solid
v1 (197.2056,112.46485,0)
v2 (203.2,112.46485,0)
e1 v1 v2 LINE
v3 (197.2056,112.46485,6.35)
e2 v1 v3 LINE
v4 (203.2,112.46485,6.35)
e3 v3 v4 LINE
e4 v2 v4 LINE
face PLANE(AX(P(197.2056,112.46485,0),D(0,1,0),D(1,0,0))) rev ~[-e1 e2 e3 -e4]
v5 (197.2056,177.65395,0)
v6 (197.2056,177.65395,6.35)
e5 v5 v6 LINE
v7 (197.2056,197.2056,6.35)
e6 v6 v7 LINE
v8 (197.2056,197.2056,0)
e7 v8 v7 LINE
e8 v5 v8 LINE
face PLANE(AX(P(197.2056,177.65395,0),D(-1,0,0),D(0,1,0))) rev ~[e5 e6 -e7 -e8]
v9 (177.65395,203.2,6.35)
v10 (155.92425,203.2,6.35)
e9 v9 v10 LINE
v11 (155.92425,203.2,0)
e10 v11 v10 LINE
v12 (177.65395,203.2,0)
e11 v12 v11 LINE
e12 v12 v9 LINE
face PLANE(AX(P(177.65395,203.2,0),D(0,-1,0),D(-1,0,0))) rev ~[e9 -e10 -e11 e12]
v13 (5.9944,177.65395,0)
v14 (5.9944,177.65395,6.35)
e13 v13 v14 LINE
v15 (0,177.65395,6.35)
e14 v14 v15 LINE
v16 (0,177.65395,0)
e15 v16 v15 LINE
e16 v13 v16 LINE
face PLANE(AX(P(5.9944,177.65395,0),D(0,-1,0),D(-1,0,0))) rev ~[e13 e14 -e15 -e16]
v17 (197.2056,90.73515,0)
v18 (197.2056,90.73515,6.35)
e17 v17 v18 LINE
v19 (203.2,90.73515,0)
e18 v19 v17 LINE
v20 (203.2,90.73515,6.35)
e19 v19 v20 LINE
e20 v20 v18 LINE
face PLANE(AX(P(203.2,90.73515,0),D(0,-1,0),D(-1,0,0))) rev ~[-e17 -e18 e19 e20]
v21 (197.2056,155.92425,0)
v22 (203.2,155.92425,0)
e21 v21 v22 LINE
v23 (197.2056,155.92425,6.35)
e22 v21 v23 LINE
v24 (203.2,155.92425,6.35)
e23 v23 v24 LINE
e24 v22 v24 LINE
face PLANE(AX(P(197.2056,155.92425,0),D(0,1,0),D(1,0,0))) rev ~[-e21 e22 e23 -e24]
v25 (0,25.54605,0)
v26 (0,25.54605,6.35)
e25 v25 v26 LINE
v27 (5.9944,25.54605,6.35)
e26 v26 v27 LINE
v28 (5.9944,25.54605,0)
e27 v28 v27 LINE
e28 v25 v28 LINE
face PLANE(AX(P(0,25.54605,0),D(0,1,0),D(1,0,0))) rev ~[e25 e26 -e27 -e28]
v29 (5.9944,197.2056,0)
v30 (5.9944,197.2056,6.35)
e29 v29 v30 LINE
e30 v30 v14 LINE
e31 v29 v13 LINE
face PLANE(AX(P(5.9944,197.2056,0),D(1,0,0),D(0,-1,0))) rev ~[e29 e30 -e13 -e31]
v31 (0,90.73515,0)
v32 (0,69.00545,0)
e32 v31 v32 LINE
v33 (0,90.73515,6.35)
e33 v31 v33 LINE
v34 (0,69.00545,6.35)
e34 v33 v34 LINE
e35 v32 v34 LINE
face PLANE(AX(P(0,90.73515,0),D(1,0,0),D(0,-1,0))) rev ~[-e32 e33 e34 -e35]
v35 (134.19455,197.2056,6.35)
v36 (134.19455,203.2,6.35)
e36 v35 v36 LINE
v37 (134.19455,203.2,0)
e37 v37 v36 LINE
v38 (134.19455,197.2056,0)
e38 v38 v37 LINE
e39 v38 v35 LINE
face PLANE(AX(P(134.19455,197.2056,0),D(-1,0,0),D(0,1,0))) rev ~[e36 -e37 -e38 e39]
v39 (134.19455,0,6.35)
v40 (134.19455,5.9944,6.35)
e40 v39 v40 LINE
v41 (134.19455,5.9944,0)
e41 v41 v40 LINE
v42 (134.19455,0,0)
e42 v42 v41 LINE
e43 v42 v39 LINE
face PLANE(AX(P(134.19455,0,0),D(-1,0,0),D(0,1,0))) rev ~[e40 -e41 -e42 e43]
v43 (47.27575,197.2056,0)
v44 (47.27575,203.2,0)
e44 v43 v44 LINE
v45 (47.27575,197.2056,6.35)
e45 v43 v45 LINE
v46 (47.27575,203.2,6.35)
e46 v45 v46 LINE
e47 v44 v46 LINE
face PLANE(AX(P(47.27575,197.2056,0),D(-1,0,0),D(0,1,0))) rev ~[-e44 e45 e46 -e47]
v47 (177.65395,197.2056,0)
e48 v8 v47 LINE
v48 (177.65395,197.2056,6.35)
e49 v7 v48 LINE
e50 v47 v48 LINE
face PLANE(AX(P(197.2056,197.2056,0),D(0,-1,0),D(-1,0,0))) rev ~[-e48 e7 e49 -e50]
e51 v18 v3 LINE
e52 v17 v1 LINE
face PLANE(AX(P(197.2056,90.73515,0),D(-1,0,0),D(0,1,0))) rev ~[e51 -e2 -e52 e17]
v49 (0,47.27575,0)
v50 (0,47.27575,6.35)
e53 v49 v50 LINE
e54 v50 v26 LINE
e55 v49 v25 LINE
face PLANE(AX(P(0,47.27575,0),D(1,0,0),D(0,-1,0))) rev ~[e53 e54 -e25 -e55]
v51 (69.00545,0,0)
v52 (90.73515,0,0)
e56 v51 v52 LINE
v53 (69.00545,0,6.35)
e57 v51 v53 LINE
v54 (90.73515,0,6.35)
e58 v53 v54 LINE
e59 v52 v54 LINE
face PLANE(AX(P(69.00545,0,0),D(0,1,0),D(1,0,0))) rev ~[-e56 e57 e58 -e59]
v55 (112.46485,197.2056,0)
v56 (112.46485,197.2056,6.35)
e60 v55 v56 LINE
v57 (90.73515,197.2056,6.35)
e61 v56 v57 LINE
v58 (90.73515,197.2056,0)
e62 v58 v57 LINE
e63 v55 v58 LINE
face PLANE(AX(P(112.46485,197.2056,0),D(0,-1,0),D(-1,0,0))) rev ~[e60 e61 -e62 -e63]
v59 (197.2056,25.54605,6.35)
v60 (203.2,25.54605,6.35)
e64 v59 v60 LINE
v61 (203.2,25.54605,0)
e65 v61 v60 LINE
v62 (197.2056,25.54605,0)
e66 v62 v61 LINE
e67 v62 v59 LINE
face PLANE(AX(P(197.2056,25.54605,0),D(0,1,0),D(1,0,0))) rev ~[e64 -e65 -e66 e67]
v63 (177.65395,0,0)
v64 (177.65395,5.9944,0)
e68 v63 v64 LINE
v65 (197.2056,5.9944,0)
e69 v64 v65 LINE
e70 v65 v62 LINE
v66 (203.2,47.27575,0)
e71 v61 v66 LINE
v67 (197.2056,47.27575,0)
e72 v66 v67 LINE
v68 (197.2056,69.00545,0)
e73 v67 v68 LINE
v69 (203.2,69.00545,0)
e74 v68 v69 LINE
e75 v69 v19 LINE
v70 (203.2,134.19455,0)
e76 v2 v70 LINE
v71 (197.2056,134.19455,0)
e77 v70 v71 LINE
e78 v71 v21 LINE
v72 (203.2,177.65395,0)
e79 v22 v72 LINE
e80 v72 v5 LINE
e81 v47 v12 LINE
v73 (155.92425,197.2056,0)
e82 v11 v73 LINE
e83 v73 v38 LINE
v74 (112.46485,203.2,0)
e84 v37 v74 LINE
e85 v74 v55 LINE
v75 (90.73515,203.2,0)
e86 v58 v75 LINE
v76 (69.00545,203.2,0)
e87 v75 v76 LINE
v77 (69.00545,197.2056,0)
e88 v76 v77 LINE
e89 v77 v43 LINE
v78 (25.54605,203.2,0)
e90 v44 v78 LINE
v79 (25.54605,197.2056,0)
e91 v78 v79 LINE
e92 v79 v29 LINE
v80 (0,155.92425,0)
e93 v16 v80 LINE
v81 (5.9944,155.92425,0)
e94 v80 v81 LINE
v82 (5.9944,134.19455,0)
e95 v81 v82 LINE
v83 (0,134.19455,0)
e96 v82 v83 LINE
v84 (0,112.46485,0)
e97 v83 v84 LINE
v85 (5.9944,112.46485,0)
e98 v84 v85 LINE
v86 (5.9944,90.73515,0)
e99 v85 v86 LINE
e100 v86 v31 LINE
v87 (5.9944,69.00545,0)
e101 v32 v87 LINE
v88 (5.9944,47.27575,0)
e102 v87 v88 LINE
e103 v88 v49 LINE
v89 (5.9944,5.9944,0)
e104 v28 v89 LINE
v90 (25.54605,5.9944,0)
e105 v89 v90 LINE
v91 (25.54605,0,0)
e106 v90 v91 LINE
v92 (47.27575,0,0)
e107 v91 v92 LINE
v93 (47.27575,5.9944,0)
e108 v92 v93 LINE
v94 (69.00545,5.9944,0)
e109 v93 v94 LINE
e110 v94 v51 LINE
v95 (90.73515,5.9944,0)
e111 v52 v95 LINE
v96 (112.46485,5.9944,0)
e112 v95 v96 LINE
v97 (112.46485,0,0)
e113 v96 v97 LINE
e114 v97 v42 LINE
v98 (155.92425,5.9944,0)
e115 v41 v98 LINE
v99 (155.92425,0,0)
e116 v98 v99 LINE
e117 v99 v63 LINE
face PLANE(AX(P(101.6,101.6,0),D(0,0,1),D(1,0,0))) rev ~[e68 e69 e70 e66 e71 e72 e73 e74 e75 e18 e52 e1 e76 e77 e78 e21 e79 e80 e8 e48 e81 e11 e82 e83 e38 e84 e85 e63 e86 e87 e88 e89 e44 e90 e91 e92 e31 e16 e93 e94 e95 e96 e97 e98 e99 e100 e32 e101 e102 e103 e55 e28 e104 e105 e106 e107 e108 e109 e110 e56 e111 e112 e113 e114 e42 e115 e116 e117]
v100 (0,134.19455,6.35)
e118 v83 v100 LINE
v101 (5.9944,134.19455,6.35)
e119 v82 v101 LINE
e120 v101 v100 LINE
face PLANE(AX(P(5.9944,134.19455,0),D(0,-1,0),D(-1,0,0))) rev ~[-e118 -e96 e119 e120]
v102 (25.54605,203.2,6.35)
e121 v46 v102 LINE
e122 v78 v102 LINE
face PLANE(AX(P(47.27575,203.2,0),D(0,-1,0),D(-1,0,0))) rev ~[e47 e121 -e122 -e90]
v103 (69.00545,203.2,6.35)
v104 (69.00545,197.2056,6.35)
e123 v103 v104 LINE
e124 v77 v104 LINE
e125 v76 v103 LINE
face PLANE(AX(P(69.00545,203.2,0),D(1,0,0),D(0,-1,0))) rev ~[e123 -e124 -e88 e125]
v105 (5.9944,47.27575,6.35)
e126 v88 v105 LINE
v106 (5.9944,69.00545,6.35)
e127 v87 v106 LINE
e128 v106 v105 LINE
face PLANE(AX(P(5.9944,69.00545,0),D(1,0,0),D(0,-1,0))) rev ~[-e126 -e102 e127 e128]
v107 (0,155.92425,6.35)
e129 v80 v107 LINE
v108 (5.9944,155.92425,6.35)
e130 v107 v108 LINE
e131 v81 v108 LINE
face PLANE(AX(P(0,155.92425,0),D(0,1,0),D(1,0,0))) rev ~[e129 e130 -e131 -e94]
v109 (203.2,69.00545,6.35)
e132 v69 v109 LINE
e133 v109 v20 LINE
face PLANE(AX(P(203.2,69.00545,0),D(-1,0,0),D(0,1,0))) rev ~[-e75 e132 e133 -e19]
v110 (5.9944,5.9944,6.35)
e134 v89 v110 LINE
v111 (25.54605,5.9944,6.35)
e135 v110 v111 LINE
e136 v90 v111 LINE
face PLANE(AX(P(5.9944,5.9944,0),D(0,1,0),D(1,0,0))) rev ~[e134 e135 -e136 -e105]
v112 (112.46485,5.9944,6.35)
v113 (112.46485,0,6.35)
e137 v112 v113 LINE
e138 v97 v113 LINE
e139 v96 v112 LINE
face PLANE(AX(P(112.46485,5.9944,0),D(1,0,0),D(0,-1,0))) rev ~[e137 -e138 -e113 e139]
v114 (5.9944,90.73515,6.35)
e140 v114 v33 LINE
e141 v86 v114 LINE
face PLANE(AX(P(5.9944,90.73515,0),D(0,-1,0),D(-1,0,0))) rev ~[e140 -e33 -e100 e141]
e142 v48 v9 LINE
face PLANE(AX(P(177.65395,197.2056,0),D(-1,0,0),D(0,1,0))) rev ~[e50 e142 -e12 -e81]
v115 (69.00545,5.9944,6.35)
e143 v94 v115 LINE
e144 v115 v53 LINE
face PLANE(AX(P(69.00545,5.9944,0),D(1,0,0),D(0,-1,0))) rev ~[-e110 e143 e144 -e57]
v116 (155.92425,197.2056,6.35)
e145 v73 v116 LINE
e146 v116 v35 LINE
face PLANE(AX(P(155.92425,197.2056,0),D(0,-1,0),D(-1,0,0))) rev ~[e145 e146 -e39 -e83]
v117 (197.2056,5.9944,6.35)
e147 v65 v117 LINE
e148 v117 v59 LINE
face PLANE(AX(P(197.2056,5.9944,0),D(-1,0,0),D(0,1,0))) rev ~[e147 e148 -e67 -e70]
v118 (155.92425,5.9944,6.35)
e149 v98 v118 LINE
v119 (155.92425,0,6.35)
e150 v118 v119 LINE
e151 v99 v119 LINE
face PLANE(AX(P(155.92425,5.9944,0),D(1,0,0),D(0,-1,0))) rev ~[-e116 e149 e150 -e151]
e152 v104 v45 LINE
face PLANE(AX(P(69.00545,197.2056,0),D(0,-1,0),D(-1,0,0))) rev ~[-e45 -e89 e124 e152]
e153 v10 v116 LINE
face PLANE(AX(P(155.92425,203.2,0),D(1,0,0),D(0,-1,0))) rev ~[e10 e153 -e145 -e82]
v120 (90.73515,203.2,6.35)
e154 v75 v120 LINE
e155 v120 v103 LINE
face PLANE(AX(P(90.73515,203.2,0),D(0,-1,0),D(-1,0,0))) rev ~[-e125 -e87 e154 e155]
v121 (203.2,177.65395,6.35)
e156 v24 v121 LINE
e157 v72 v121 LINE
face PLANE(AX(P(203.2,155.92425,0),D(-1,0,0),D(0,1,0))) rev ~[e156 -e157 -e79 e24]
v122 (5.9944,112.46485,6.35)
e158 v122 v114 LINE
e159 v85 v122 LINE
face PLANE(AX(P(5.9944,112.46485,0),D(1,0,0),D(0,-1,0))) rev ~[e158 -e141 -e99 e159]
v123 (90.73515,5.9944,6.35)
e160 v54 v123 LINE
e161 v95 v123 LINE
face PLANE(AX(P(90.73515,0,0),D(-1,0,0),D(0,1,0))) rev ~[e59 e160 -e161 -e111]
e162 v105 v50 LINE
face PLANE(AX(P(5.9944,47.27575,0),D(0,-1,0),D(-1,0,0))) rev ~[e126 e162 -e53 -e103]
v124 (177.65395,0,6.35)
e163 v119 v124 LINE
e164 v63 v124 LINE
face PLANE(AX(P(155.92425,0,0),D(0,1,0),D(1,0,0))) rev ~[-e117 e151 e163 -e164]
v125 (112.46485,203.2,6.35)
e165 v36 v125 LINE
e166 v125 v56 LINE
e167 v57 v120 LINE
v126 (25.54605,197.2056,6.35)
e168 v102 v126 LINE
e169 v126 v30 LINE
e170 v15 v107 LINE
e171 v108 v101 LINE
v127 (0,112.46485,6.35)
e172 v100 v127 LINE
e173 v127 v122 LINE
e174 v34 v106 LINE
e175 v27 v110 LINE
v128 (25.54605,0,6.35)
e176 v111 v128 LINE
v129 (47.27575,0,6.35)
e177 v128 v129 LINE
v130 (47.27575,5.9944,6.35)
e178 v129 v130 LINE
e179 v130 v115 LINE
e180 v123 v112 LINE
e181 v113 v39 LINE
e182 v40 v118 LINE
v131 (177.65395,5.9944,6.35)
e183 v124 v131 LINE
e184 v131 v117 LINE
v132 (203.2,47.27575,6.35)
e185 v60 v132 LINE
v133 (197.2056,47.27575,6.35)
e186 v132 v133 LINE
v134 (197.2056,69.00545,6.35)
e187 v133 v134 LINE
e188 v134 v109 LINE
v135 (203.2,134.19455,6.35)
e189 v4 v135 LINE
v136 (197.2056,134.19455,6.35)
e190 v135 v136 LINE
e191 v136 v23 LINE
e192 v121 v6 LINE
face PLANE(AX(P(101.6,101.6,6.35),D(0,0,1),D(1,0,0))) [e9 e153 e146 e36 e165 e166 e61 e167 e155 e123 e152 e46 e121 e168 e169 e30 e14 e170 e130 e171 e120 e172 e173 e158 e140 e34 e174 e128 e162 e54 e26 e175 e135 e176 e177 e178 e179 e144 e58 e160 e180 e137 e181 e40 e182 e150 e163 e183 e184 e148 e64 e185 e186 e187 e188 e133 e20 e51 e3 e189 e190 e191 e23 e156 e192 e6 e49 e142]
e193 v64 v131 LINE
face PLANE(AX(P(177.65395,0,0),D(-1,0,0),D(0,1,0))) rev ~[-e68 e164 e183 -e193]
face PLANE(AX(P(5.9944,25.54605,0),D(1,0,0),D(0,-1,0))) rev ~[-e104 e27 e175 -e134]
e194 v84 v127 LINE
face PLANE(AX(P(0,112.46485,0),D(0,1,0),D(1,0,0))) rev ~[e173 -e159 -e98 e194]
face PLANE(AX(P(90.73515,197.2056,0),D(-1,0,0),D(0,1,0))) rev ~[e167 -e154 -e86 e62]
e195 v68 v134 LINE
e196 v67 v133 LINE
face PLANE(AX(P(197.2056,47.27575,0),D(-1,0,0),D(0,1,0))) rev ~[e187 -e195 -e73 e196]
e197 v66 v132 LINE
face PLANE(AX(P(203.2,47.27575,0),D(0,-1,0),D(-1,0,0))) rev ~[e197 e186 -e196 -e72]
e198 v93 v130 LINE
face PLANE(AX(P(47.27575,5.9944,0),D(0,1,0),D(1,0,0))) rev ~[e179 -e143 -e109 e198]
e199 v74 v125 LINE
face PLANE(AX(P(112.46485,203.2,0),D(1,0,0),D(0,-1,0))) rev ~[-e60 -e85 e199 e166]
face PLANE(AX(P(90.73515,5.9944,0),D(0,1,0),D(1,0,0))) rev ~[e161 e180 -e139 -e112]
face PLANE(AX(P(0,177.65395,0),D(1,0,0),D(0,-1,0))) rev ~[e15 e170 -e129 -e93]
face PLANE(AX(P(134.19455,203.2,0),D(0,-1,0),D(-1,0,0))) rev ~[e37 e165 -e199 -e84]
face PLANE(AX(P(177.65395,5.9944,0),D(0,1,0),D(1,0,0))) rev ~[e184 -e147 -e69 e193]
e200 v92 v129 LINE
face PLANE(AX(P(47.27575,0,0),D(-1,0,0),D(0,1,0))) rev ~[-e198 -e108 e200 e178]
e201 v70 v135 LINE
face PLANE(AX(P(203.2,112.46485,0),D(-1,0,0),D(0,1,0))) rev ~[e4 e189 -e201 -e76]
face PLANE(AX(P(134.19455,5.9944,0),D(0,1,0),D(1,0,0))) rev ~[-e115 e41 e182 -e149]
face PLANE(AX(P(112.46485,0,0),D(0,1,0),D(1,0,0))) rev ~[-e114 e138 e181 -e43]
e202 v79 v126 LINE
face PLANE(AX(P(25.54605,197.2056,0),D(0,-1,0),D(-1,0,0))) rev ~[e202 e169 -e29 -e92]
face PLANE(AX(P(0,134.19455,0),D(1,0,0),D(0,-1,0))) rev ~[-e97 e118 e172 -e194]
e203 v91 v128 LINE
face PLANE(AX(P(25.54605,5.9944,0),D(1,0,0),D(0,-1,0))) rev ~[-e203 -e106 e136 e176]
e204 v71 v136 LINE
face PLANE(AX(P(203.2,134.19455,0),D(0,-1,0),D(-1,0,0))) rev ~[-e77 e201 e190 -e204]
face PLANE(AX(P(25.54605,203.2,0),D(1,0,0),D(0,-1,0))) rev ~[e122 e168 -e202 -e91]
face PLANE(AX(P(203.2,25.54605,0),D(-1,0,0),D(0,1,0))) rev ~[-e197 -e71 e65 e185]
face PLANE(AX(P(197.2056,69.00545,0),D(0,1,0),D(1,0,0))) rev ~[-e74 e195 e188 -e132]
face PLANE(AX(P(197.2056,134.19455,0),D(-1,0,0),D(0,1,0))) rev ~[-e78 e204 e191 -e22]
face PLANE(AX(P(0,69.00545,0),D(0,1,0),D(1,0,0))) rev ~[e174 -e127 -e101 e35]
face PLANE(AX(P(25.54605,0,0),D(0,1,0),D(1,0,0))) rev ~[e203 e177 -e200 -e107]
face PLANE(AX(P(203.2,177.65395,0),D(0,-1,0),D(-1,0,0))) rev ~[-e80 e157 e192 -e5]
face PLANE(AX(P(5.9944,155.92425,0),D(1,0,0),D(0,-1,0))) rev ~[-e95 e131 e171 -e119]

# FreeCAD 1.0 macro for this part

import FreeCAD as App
import Part
import Sketcher
from FreeCAD import Vector
Q = App.Units.Quantity


def add_polygon(sketch, points):
    """Adds a closed chain of lines whose ends are joined by coincident constraints."""
    first, n = sketch.GeometryCount, len(points)
    for a, b in zip(points, points[1:] + points[:1]):
        sketch.addGeometry(Part.LineSegment(App.Vector(*a, 0), App.Vector(*b, 0)), False)
    for i in range(n):
        sketch.addConstraint(Sketcher.Constraint("Coincident", first + i, 2, first + (i + 1) % n, 1))

doc = App.newDocument("Part")
body = doc.addObject("PartDesign::Body", "Body")

sketch1 = body.newObject("Sketcher::SketchObject", "Sketch")
sketch1.AttachmentSupport = (doc.getObject("XY_Plane"), [""])
sketch1.MapMode = "FlatFace"
add_polygon(sketch1, [(0, 177.65395), (0, 155.92425), (5.9944, 155.92425), (5.9944, 134.19455), (0, 134.19455), (0, 112.46485), (5.9944, 112.46485), (5.9944, 90.73515), (0, 90.73515), (0, 69.00545), (5.9944, 69.00545), (5.9944, 47.27575), (0, 47.27575), (0, 25.54605), (5.9944, 25.54605), (5.9944, 5.9944), (25.54605, 5.9944), (25.54605, 0), (47.27575, 0), (47.27575, 5.9944), (69.00545, 5.9944), (69.00545, 0), (90.73515, 0), (90.73515, 5.9944), (112.46485, 5.9944), (112.46485, 0), (134.19455, 0), (134.19455, 5.9944), (155.92425, 5.9944), (155.92425, 0), (177.65395, 0), (177.65395, 5.9944), (197.2056, 5.9944), (197.2056, 25.54605), (203.2, 25.54605), (203.2, 47.27575), (197.2056, 47.27575), (197.2056, 69.00545), (203.2, 69.00545), (203.2, 90.73515), (197.2056, 90.73515), (197.2056, 112.46485), (203.2, 112.46485), (203.2, 134.19455), (197.2056, 134.19455), (197.2056, 155.92425), (203.2, 155.92425), (203.2, 177.65395), (197.2056, 177.65395), (197.2056, 197.2056), (177.65395, 197.2056), (177.65395, 203.2), (155.92425, 203.2), (155.92425, 197.2056), (134.19455, 197.2056), (134.19455, 203.2), (112.46485, 203.2), (112.46485, 197.2056), (90.73515, 197.2056), (90.73515, 203.2), (69.00545, 203.2), (69.00545, 197.2056), (47.27575, 197.2056), (47.27575, 203.2), (25.54605, 203.2), (25.54605, 197.2056), (5.9944, 197.2056), (5.9944, 177.65395)])
sketch1.addConstraint([
    Sketcher.Constraint("Vertical", 0),
    Sketcher.Constraint("Horizontal", 1),
    Sketcher.Constraint("Vertical", 2),
    Sketcher.Constraint("Horizontal", 3),
    Sketcher.Constraint("Vertical", 4),
    Sketcher.Constraint("Horizontal", 5),
    Sketcher.Constraint("Vertical", 6),
    Sketcher.Constraint("Horizontal", 7),
    Sketcher.Constraint("Vertical", 8),
    Sketcher.Constraint("Horizontal", 9),
    Sketcher.Constraint("Vertical", 10),
    Sketcher.Constraint("Horizontal", 11),
    Sketcher.Constraint("Vertical", 12),
    Sketcher.Constraint("Horizontal", 13),
    Sketcher.Constraint("Vertical", 14),
    Sketcher.Constraint("Horizontal", 15),
    Sketcher.Constraint("Vertical", 16),
    Sketcher.Constraint("Horizontal", 17),
    Sketcher.Constraint("Vertical", 18),
    Sketcher.Constraint("Horizontal", 19),
    Sketcher.Constraint("Vertical", 20),
    Sketcher.Constraint("Horizontal", 21),
    Sketcher.Constraint("Vertical", 22),
    Sketcher.Constraint("Horizontal", 23),
    Sketcher.Constraint("Vertical", 24),
    Sketcher.Constraint("Horizontal", 25),
    Sketcher.Constraint("Vertical", 26),
    Sketcher.Constraint("Horizontal", 27),
    Sketcher.Constraint("Vertical", 28),
    Sketcher.Constraint("Horizontal", 29),
    Sketcher.Constraint("Vertical", 30),
    Sketcher.Constraint("Horizontal", 31),
    Sketcher.Constraint("Vertical", 32),
    Sketcher.Constraint("Horizontal", 33),
    Sketcher.Constraint("Vertical", 34),
    Sketcher.Constraint("Horizontal", 35),
    Sketcher.Constraint("Vertical", 36),
    Sketcher.Constraint("Horizontal", 37),
    Sketcher.Constraint("Vertical", 38),
    Sketcher.Constraint("Horizontal", 39),
    Sketcher.Constraint("Vertical", 40),
    Sketcher.Constraint("Horizontal", 41),
    Sketcher.Constraint("Vertical", 42),
    Sketcher.Constraint("Horizontal", 43),
    Sketcher.Constraint("Vertical", 44),
    Sketcher.Constraint("Horizontal", 45),
    Sketcher.Constraint("Vertical", 46),
    Sketcher.Constraint("Horizontal", 47),
    Sketcher.Constraint("Vertical", 48),
    Sketcher.Constraint("Horizontal", 49),
    Sketcher.Constraint("Vertical", 50),
    Sketcher.Constraint("Horizontal", 51),
    Sketcher.Constraint("Vertical", 52),
    Sketcher.Constraint("Horizontal", 53),
    Sketcher.Constraint("Vertical", 54),
    Sketcher.Constraint("Horizontal", 55),
    Sketcher.Constraint("Vertical", 56),
    Sketcher.Constraint("Horizontal", 57),
    Sketcher.Constraint("Vertical", 58),
    Sketcher.Constraint("Horizontal", 59),
    Sketcher.Constraint("Vertical", 60),
    Sketcher.Constraint("Horizontal", 61),
    Sketcher.Constraint("Vertical", 62),
    Sketcher.Constraint("Horizontal", 63),
    Sketcher.Constraint("Vertical", 64),
    Sketcher.Constraint("Horizontal", 65),
    Sketcher.Constraint("Vertical", 66),
    Sketcher.Constraint("Horizontal", 67),
    Sketcher.Constraint("PointOnObject", 0, 2, -2),
    Sketcher.Constraint("PointOnObject", 3, 2, -2),
    Sketcher.Constraint("PointOnObject", 7, 2, -2),
    Sketcher.Constraint("PointOnObject", 11, 2, -2),
    Sketcher.Constraint("PointOnObject", 16, 2, -1),
    Sketcher.Constraint("PointOnObject", 20, 2, -1),
    Sketcher.Constraint("PointOnObject", 24, 2, -1),
    Sketcher.Constraint("PointOnObject", 28, 2, -1),
    Sketcher.Constraint("Horizontal", 15, 2, 18, 2),
    Sketcher.Constraint("Horizontal", 19, 2, 22, 2),
    Sketcher.Constraint("Horizontal", 23, 2, 26, 2),
    Sketcher.Constraint("Horizontal", 27, 2, 30, 2),
    Sketcher.Constraint("Horizontal", 13, 2, 32, 2),
    Sketcher.Constraint("Horizontal", 11, 2, 34, 2),
    Sketcher.Constraint("Horizontal", 9, 2, 36, 2),
    Sketcher.Constraint("Horizontal", 7, 2, 38, 2),
    Sketcher.Constraint("Horizontal", 5, 2, 40, 2),
    Sketcher.Constraint("Horizontal", 3, 2, 42, 2),
    Sketcher.Constraint("Horizontal", 1, 2, 44, 2),
    Sketcher.Constraint("Horizontal", 49, 2, 52, 2),
    Sketcher.Constraint("Horizontal", 51, 2, 54, 2),
    Sketcher.Constraint("Horizontal", 53, 2, 56, 2),
    Sketcher.Constraint("Horizontal", 55, 2, 58, 2),
    Sketcher.Constraint("Horizontal", 57, 2, 60, 2),
    Sketcher.Constraint("Horizontal", 59, 2, 62, 2),
    Sketcher.Constraint("Horizontal", 61, 2, 64, 2),
    Sketcher.Constraint("Horizontal", 47, 2, 66, 2),
    Sketcher.Constraint("Vertical", 2, 2, 5, 2),
    Sketcher.Constraint("Vertical", 6, 2, 9, 2),
    Sketcher.Constraint("Vertical", 10, 2, 13, 2),
    Sketcher.Constraint("Vertical", 32, 2, 35, 2),
    Sketcher.Constraint("Vertical", 34, 2, 37, 2),
    Sketcher.Constraint("Vertical", 36, 2, 39, 2),
    Sketcher.Constraint("Vertical", 38, 2, 41, 2),
    Sketcher.Constraint("Vertical", 40, 2, 43, 2),
    Sketcher.Constraint("Vertical", 42, 2, 45, 2),
    Sketcher.Constraint("Vertical", 44, 2, 47, 2),
    Sketcher.Constraint("Vertical", 30, 2, 49, 2),
    Sketcher.Constraint("Vertical", 28, 2, 51, 2),
    Sketcher.Constraint("Vertical", 26, 2, 53, 2),
    Sketcher.Constraint("Vertical", 24, 2, 55, 2),
    Sketcher.Constraint("Vertical", 22, 2, 57, 2),
    Sketcher.Constraint("Vertical", 20, 2, 59, 2),
    Sketcher.Constraint("Vertical", 18, 2, 61, 2),
    Sketcher.Constraint("Vertical", 16, 2, 63, 2),
    Sketcher.Constraint("Vertical", 14, 2, 65, 2),
    Sketcher.Constraint("Equal", 17, 19),
    Sketcher.Constraint("Equal", 19, 21),
    Sketcher.Constraint("Equal", 21, 23),
    Sketcher.Constraint("Equal", 23, 25),
    Sketcher.Constraint("Equal", 25, 27),
    Sketcher.Constraint("Equal", 27, 29),
    Sketcher.Constraint("Equal", 15, 31),
    Sketcher.Constraint("Equal", 13, 33),
    Sketcher.Constraint("Equal", 63, 0),
    Sketcher.Constraint("Equal", 0, 2),
    Sketcher.Constraint("Equal", 2, 4),
    Sketcher.Constraint("Equal", 4, 6),
    Sketcher.Constraint("Equal", 6, 8),
    Sketcher.Constraint("Equal", 8, 10),
    Sketcher.Constraint("Equal", 10, 12),
    Sketcher.Constraint("Equal", 65, 14),
    Sketcher.Constraint("Equal", 67, 16),
    Sketcher.Constraint("Equal", 32, 48),
    Sketcher.Constraint("Equal", 30, 50),
    Sketcher.Constraint("DistanceX", -1, 1, 33, 2, Q("8 in")),
    Sketcher.Constraint("DistanceX", 1, 1, 1, 2, Q("0.236 in")),
    Sketcher.Constraint("DistanceX", 17, 1, 17, 2, Q("0.8555 in")),
])
pad1 = body.newObject("PartDesign::Pad", "Pad")
pad1.Profile = sketch1
pad1.Length = Q("0.25 in")

doc.recompute()
